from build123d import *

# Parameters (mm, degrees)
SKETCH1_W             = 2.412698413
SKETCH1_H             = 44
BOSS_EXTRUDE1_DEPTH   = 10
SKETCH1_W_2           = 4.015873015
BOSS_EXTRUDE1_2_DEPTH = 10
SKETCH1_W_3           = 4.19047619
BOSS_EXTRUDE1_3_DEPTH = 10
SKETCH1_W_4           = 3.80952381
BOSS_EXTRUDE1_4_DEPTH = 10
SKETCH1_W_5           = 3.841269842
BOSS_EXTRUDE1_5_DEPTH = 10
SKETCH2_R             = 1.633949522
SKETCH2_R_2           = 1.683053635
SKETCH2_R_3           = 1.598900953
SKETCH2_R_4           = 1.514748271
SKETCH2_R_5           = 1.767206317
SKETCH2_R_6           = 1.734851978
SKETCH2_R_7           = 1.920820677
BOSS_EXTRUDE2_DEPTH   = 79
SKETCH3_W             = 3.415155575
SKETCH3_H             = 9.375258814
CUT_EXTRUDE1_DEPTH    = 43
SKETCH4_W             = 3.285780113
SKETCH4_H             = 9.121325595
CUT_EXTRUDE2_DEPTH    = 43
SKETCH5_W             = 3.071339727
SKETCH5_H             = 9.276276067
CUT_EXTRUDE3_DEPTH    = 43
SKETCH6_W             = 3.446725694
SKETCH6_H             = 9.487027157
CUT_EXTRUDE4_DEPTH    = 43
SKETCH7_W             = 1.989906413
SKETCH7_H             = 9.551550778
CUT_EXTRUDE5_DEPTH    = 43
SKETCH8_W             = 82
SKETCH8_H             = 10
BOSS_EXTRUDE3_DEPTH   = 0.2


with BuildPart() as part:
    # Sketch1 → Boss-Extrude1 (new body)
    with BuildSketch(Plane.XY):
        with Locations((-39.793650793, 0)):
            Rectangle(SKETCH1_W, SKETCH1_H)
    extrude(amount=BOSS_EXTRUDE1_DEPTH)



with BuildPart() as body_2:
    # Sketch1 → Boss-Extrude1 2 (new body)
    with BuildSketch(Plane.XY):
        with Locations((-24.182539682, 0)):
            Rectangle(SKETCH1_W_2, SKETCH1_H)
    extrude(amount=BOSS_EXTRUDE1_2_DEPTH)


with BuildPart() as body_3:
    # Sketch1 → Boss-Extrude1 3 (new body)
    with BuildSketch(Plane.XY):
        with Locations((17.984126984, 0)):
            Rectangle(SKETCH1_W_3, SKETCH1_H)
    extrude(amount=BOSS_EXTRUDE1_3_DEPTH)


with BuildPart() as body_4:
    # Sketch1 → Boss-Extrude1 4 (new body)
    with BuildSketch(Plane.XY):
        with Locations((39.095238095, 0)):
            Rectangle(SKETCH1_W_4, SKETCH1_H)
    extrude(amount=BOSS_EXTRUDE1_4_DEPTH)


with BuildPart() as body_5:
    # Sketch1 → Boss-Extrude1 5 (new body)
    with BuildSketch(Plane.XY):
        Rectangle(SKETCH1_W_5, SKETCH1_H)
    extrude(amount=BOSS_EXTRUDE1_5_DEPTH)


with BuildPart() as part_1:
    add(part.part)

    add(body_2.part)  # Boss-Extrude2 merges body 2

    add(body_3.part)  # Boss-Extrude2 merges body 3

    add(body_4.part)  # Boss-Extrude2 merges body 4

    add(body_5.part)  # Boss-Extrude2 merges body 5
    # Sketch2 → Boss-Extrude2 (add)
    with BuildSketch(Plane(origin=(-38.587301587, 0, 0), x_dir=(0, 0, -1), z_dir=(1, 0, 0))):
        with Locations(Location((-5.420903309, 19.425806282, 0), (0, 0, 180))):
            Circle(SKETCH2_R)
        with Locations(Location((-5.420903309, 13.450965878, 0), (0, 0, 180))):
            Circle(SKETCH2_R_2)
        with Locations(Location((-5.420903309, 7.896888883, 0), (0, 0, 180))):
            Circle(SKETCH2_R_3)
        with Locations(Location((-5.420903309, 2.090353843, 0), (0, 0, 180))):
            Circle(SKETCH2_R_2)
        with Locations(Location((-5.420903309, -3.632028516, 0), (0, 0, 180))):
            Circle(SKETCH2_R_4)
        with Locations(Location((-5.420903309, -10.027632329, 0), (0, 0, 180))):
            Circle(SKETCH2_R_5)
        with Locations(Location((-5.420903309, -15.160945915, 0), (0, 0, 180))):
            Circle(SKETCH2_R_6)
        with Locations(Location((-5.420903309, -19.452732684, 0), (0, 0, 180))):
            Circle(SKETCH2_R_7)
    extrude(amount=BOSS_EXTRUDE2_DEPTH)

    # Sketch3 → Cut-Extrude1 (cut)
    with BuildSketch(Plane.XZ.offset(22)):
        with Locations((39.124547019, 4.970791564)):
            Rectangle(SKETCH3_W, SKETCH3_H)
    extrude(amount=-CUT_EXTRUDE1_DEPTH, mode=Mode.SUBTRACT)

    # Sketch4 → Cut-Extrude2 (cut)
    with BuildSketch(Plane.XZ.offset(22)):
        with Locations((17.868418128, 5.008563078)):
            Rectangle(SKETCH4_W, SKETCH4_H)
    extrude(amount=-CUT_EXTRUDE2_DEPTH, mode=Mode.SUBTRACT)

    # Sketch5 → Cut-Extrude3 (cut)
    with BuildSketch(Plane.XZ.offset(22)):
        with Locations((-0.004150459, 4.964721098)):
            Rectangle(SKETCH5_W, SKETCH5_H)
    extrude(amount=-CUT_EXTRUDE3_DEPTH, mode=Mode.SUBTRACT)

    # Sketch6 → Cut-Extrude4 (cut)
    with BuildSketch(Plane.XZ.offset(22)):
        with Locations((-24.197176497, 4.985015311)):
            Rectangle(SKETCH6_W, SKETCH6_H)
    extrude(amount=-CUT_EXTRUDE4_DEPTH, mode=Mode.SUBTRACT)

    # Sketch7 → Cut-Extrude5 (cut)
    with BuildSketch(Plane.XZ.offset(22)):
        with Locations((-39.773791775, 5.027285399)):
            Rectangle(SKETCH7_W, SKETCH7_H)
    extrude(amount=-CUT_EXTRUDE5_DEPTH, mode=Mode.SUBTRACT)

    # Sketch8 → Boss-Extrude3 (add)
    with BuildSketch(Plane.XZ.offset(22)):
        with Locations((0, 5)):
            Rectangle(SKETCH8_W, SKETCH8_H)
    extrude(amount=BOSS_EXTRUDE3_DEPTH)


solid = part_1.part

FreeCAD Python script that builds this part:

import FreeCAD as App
import Part
import Sketcher
Q = App.Units.Quantity

doc = App.newDocument("Part")
body = doc.addObject("PartDesign::Body", "Body")

# Sketch on XY plane
sketch1 = doc.addObject("Sketcher::SketchObject", "Sketch")
body.addObject(sketch1)
sketch1.AttachmentSupport = (doc.XY_Plane, [""])
sketch1.MapMode = "FlatFace"
sketch1.addGeometry([
    Part.LineSegment(App.Vector(-41, 22, 0), App.Vector(-41, -22, 0)),
    Part.LineSegment(App.Vector(-41, -22, 0), App.Vector(-38.587302, -22, 0)),
    Part.LineSegment(App.Vector(-38.587302, -22, 0), App.Vector(-38.587302, 22, 0)),
    Part.LineSegment(App.Vector(-38.587302, 22, 0), App.Vector(-41, 22, 0)),
], False)
sketch1.addConstraint([
    Sketcher.Constraint("Coincident", 0, 2, 1, 1),
    Sketcher.Constraint("Coincident", 1, 2, 2, 1),
    Sketcher.Constraint("Coincident", 2, 2, 3, 1),
    Sketcher.Constraint("Coincident", 3, 2, 0, 1),
    Sketcher.Constraint("Vertical", 0),
    Sketcher.Constraint("Horizontal", 1),
    Sketcher.Constraint("Vertical", 2),
    Sketcher.Constraint("Horizontal", 3),
    Sketcher.Constraint("DistanceY", 0, 2, 0, 1, Q("44 mm")),
    Sketcher.Constraint("DistanceX", 0, 2, -1, 1, Q("41 mm")),
    Sketcher.Constraint("DistanceY", 0, 2, -1, 1, Q("22 mm")),
    Sketcher.Constraint("DistanceX", 1, 1, 1, 2, Q("2.412698 mm")),
])
pad1 = doc.addObject("PartDesign::Pad", "Pad")
body.addObject(pad1)
pad1.Profile = sketch1
pad1.Length = 10
body2 = doc.addObject("PartDesign::Body", "Body001")

# Sketch on XY plane
sketch2 = doc.addObject("Sketcher::SketchObject", "Sketch001")
body2.addObject(sketch2)
sketch2.AttachmentSupport = (doc.getObject("XY_Plane001"), [""])
sketch2.MapMode = "FlatFace"
sketch2.addGeometry([
    Part.LineSegment(App.Vector(-26.190476, 22, 0), App.Vector(-26.190476, -22, 0)),
    Part.LineSegment(App.Vector(-26.190476, -22, 0), App.Vector(-22.174603, -22, 0)),
    Part.LineSegment(App.Vector(-22.174603, -22, 0), App.Vector(-22.174603, 22, 0)),
    Part.LineSegment(App.Vector(-22.174603, 22, 0), App.Vector(-26.190476, 22, 0)),
], False)
sketch2.addConstraint([
    Sketcher.Constraint("Coincident", 0, 2, 1, 1),
    Sketcher.Constraint("Coincident", 1, 2, 2, 1),
    Sketcher.Constraint("Coincident", 2, 2, 3, 1),
    Sketcher.Constraint("Coincident", 3, 2, 0, 1),
    Sketcher.Constraint("Vertical", 0),
    Sketcher.Constraint("Horizontal", 1),
    Sketcher.Constraint("Vertical", 2),
    Sketcher.Constraint("Horizontal", 3),
    Sketcher.Constraint("DistanceY", 0, 2, 0, 1, Q("44 mm")),
    Sketcher.Constraint("DistanceY", 0, 2, -1, 1, Q("22 mm")),
    Sketcher.Constraint("DistanceX", 1, 1, 1, 2, Q("4.015873 mm")),
    Sketcher.Constraint("DistanceX", 0, 2, -1, 1, Q("26.190476 mm")),
])
pad2 = doc.addObject("PartDesign::Pad", "Pad001")
body2.addObject(pad2)
pad2.Profile = sketch2
pad2.Length = 10
body3 = doc.addObject("PartDesign::Body", "Body002")

# Sketch on XY plane
sketch3 = doc.addObject("Sketcher::SketchObject", "Sketch002")
body3.addObject(sketch3)
sketch3.AttachmentSupport = (doc.getObject("XY_Plane002"), [""])
sketch3.MapMode = "FlatFace"
sketch3.addGeometry([
    Part.LineSegment(App.Vector(15.888889, 22, 0), App.Vector(15.888889, -22, 0)),
    Part.LineSegment(App.Vector(15.888889, -22, 0), App.Vector(20.079365, -22, 0)),
    Part.LineSegment(App.Vector(20.079365, -22, 0), App.Vector(20.079365, 22, 0)),
    Part.LineSegment(App.Vector(20.079365, 22, 0), App.Vector(15.888889, 22, 0)),
], False)
sketch3.addConstraint([
    Sketcher.Constraint("Coincident", 0, 2, 1, 1),
    Sketcher.Constraint("Coincident", 1, 2, 2, 1),
    Sketcher.Constraint("Coincident", 2, 2, 3, 1),
    Sketcher.Constraint("Coincident", 3, 2, 0, 1),
    Sketcher.Constraint("Vertical", 0),
    Sketcher.Constraint("Horizontal", 1),
    Sketcher.Constraint("Vertical", 2),
    Sketcher.Constraint("Horizontal", 3),
    Sketcher.Constraint("DistanceY", 0, 2, 0, 1, Q("44 mm")),
    Sketcher.Constraint("DistanceY", 0, 2, -1, 1, Q("22 mm")),
    Sketcher.Constraint("DistanceX", 1, 1, 1, 2, Q("4.190476 mm")),
    Sketcher.Constraint("DistanceX", -1, 1, 0, 2, Q("15.888889 mm")),
])
pad3 = doc.addObject("PartDesign::Pad", "Pad002")
body3.addObject(pad3)
pad3.Profile = sketch3
pad3.Length = 10
body4 = doc.addObject("PartDesign::Body", "Body003")

# Sketch on XY plane
sketch4 = doc.addObject("Sketcher::SketchObject", "Sketch003")
body4.addObject(sketch4)
sketch4.AttachmentSupport = (doc.getObject("XY_Plane003"), [""])
sketch4.MapMode = "FlatFace"
sketch4.addGeometry([
    Part.LineSegment(App.Vector(37.190476, 22, 0), App.Vector(37.190476, -22, 0)),
    Part.LineSegment(App.Vector(37.190476, -22, 0), App.Vector(41, -22, 0)),
    Part.LineSegment(App.Vector(41, -22, 0), App.Vector(41, 22, 0)),
    Part.LineSegment(App.Vector(41, 22, 0), App.Vector(37.190476, 22, 0)),
], False)
sketch4.addConstraint([
    Sketcher.Constraint("Coincident", 0, 2, 1, 1),
    Sketcher.Constraint("Coincident", 1, 2, 2, 1),
    Sketcher.Constraint("Coincident", 2, 2, 3, 1),
    Sketcher.Constraint("Coincident", 3, 2, 0, 1),
    Sketcher.Constraint("Vertical", 0),
    Sketcher.Constraint("Horizontal", 1),
    Sketcher.Constraint("Vertical", 2),
    Sketcher.Constraint("Horizontal", 3),
    Sketcher.Constraint("DistanceY", 0, 2, 0, 1, Q("44 mm")),
    Sketcher.Constraint("DistanceY", 0, 2, -1, 1, Q("22 mm")),
    Sketcher.Constraint("DistanceX", -1, 1, 1, 2, Q("41 mm")),
    Sketcher.Constraint("DistanceX", 1, 1, 1, 2, Q("3.809524 mm")),
])
pad4 = doc.addObject("PartDesign::Pad", "Pad003")
body4.addObject(pad4)
pad4.Profile = sketch4
pad4.Length = 10
body5 = doc.addObject("PartDesign::Body", "Body004")

# Sketch on XY plane
sketch5 = doc.addObject("Sketcher::SketchObject", "Sketch004")
body5.addObject(sketch5)
sketch5.AttachmentSupport = (doc.getObject("XY_Plane004"), [""])
sketch5.MapMode = "FlatFace"
sketch5.addGeometry([
    Part.LineSegment(App.Vector(-1.920635, 22, 0), App.Vector(-1.920635, -22, 0)),
    Part.LineSegment(App.Vector(-1.920635, -22, 0), App.Vector(1.920635, -22, 0)),
    Part.LineSegment(App.Vector(1.920635, -22, 0), App.Vector(1.920635, 22, 0)),
    Part.LineSegment(App.Vector(1.920635, 22, 0), App.Vector(-1.920635, 22, 0)),
], False)
sketch5.addConstraint([
    Sketcher.Constraint("Coincident", 0, 2, 1, 1),
    Sketcher.Constraint("Coincident", 1, 2, 2, 1),
    Sketcher.Constraint("Coincident", 2, 2, 3, 1),
    Sketcher.Constraint("Coincident", 3, 2, 0, 1),
    Sketcher.Constraint("Vertical", 0),
    Sketcher.Constraint("Horizontal", 1),
    Sketcher.Constraint("Vertical", 2),
    Sketcher.Constraint("Horizontal", 3),
    Sketcher.Constraint("Symmetric", 0, 2, 2, 2, -1, 1),
    Sketcher.Constraint("DistanceY", 0, 2, 0, 1, Q("44 mm")),
    Sketcher.Constraint("DistanceX", 1, 1, 1, 2, Q("3.84127 mm")),
])
pad5 = doc.addObject("PartDesign::Pad", "Pad004")
body5.addObject(pad5)
pad5.Profile = sketch5
pad5.Length = 10
body.AllowCompound = True
doc.recompute()

boolean = doc.addObject("PartDesign::Boolean", "Boolean")
body.addObject(boolean)
boolean.Type = "Fuse"
boolean.addObjects([body2])
doc.recompute()

boolean2 = doc.addObject("PartDesign::Boolean", "Boolean001")
body.addObject(boolean2)
boolean2.Type = "Fuse"
boolean2.addObjects([body3])
doc.recompute()

boolean3 = doc.addObject("PartDesign::Boolean", "Boolean002")
body.addObject(boolean3)
boolean3.Type = "Fuse"
boolean3.addObjects([body4])
doc.recompute()

boolean4 = doc.addObject("PartDesign::Boolean", "Boolean003")
body.addObject(boolean4)
boolean4.Type = "Fuse"
boolean4.addObjects([body5])

# Sketch on YZ plane
sketch6 = doc.addObject("Sketcher::SketchObject", "Sketch005")
body.addObject(sketch6)
sketch6.AttachmentSupport = (doc.YZ_Plane, [""])
sketch6.MapMode = "FlatFace"
sketch6.AttachmentOffset = App.Placement(App.Vector(0, 0, -38.587302), App.Rotation())
sketch6.addGeometry([
    Part.Circle(App.Vector(19.425806, 5.420903, 0), App.Vector(0, 0, 1), 1.63395),  # 0
    Part.Circle(App.Vector(13.450966, 5.420903, 0), App.Vector(0, 0, 1), 1.683054),  # 1
    Part.Circle(App.Vector(7.896889, 5.420903, 0), App.Vector(0, 0, 1), 1.598901),  # 2
    Part.Circle(App.Vector(2.090354, 5.420903, 0), App.Vector(0, 0, 1), 1.683054),  # 3
    Part.Circle(App.Vector(-3.632029, 5.420903, 0), App.Vector(0, 0, 1), 1.514748),  # 4
    Part.Circle(App.Vector(-10.027632, 5.420903, 0), App.Vector(0, 0, 1), 1.767206),  # 5
    Part.Circle(App.Vector(-15.160946, 5.420903, 0), App.Vector(0, 0, 1), 1.734852),  # 6
    Part.Circle(App.Vector(-19.452733, 5.420903, 0), App.Vector(0, 0, 1), 1.920821),  # 7
], False)
sketch6.addConstraint([
    Sketcher.Constraint("Equal", 1, 3),
    Sketcher.Constraint("Horizontal", 0, 3, 1, 3),
    Sketcher.Constraint("Horizontal", 1, 3, 2, 3),
    Sketcher.Constraint("Horizontal", 2, 3, 3, 3),
    Sketcher.Constraint("Horizontal", 3, 3, 4, 3),
    Sketcher.Constraint("Horizontal", 4, 3, 5, 3),
    Sketcher.Constraint("Horizontal", 5, 3, 6, 3),
    Sketcher.Constraint("Horizontal", 6, 3, 7, 3),
    Sketcher.Constraint("Diameter", 0, Q("3.267899 mm")),
    Sketcher.Constraint("Diameter", 2, Q("3.197802 mm")),
    Sketcher.Constraint("Diameter", 7, Q("3.841641 mm")),
    Sketcher.Constraint("Diameter", 1, Q("3.366107 mm")),
    Sketcher.Constraint("Diameter", 4, Q("3.029497 mm")),
    Sketcher.Constraint("Diameter", 5, Q("3.534413 mm")),
    Sketcher.Constraint("Diameter", 6, Q("3.469704 mm")),
    Sketcher.Constraint("DistanceX", 5, 3, 1, 3, Q("23.478598 mm")),
    Sketcher.Constraint("DistanceX", 6, 3, 3, 3, Q("17.2513 mm")),
    Sketcher.Constraint("DistanceX", 7, 3, 5, 3, Q("9.4251 mm")),
    Sketcher.Constraint("DistanceX", -1, 1, 2, 3, Q("7.896889 mm")),
    Sketcher.Constraint("DistanceX", 4, 3, -1, 1, Q("3.632029 mm")),
    Sketcher.Constraint("DistanceX", 1, 3, 0, 3, Q("5.97484 mm")),
    Sketcher.Constraint("DistanceX", 5, 3, 2, 3, Q("17.924521 mm")),
    Sketcher.Constraint("DistanceX", 6, 3, 1, 3, Q("28.611912 mm")),
    Sketcher.Constraint("DistanceY", -1, 1, 0, 3, Q("5.420903 mm")),
])
pad6 = doc.addObject("PartDesign::Pad", "Pad005")
body.addObject(pad6)
pad6.Profile = sketch6
pad6.Length = 79

# Sketch on XZ plane
sketch7 = doc.addObject("Sketcher::SketchObject", "Sketch006")
body.addObject(sketch7)
sketch7.AttachmentSupport = (doc.XZ_Plane, [""])
sketch7.MapMode = "FlatFace"
sketch7.AttachmentOffset = App.Placement(App.Vector(0, 0, 22), App.Rotation())
sketch7.addGeometry([
    Part.LineSegment(App.Vector(37.416969, 9.658421, 0), App.Vector(37.416969, 0.283162, 0)),
    Part.LineSegment(App.Vector(37.416969, 0.283162, 0), App.Vector(40.832125, 0.283162, 0)),
    Part.LineSegment(App.Vector(40.832125, 0.283162, 0), App.Vector(40.832125, 9.658421, 0)),
    Part.LineSegment(App.Vector(40.832125, 9.658421, 0), App.Vector(37.416969, 9.658421, 0)),
], False)
sketch7.addConstraint([
    Sketcher.Constraint("Coincident", 0, 2, 1, 1),
    Sketcher.Constraint("Coincident", 1, 2, 2, 1),
    Sketcher.Constraint("Coincident", 2, 2, 3, 1),
    Sketcher.Constraint("Coincident", 3, 2, 0, 1),
    Sketcher.Constraint("Vertical", 0),
    Sketcher.Constraint("Horizontal", 1),
    Sketcher.Constraint("Vertical", 2),
    Sketcher.Constraint("Horizontal", 3),
    Sketcher.Constraint("DistanceY", 0, 2, 0, 1, Q("9.375259 mm")),
    Sketcher.Constraint("DistanceX", 1, 1, 1, 2, Q("3.415156 mm")),
    Sketcher.Constraint("DistanceX", -1, 1, 0, 2, Q("37.416969 mm")),
    Sketcher.Constraint("DistanceY", -1, 1, 2, 2, Q("9.658421 mm")),
])
pocket1 = doc.addObject("PartDesign::Pocket", "Pocket")
body.addObject(pocket1)
pocket1.Profile = sketch7
pocket1.Length = 43

# Sketch on XZ plane
sketch8 = doc.addObject("Sketcher::SketchObject", "Sketch007")
body.addObject(sketch8)
sketch8.AttachmentSupport = (doc.XZ_Plane, [""])
sketch8.MapMode = "FlatFace"
sketch8.AttachmentOffset = App.Placement(App.Vector(0, 0, 22), App.Rotation())
sketch8.addGeometry([
    Part.LineSegment(App.Vector(16.225528, 9.569226, 0), App.Vector(16.225528, 0.4479, 0)),
    Part.LineSegment(App.Vector(16.225528, 0.4479, 0), App.Vector(19.511308, 0.4479, 0)),
    Part.LineSegment(App.Vector(19.511308, 0.4479, 0), App.Vector(19.511308, 9.569226, 0)),
    Part.LineSegment(App.Vector(19.511308, 9.569226, 0), App.Vector(16.225528, 9.569226, 0)),
], False)
sketch8.addConstraint([
    Sketcher.Constraint("Coincident", 0, 2, 1, 1),
    Sketcher.Constraint("Coincident", 1, 2, 2, 1),
    Sketcher.Constraint("Coincident", 2, 2, 3, 1),
    Sketcher.Constraint("Coincident", 3, 2, 0, 1),
    Sketcher.Constraint("Vertical", 0),
    Sketcher.Constraint("Horizontal", 1),
    Sketcher.Constraint("Vertical", 2),
    Sketcher.Constraint("Horizontal", 3),
    Sketcher.Constraint("DistanceX", 1, 1, 1, 2, Q("3.28578 mm")),
    Sketcher.Constraint("DistanceY", -1, 1, 0, 2, Q("0.4479 mm")),
    Sketcher.Constraint("DistanceY", 0, 2, 0, 1, Q("9.121326 mm")),
    Sketcher.Constraint("DistanceX", -1, 1, 0, 2, Q("16.225528 mm")),
])
pocket2 = doc.addObject("PartDesign::Pocket", "Pocket001")
body.addObject(pocket2)
pocket2.Profile = sketch8
pocket2.Length = 43

# Sketch on XZ plane
sketch9 = doc.addObject("Sketcher::SketchObject", "Sketch008")
body.addObject(sketch9)
sketch9.AttachmentSupport = (doc.XZ_Plane, [""])
sketch9.MapMode = "FlatFace"
sketch9.AttachmentOffset = App.Placement(App.Vector(0, 0, 22), App.Rotation())
sketch9.addGeometry([
    Part.LineSegment(App.Vector(-1.53982, 9.602859, 0), App.Vector(-1.53982, 0.326583, 0)),
    Part.LineSegment(App.Vector(-1.53982, 0.326583, 0), App.Vector(1.531519, 0.326583, 0)),
    Part.LineSegment(App.Vector(1.531519, 0.326583, 0), App.Vector(1.531519, 9.602859, 0)),
    Part.LineSegment(App.Vector(1.531519, 9.602859, 0), App.Vector(-1.53982, 9.602859, 0)),
], False)
sketch9.addConstraint([
    Sketcher.Constraint("Coincident", 0, 2, 1, 1),
    Sketcher.Constraint("Coincident", 1, 2, 2, 1),
    Sketcher.Constraint("Coincident", 2, 2, 3, 1),
    Sketcher.Constraint("Coincident", 3, 2, 0, 1),
    Sketcher.Constraint("Vertical", 0),
    Sketcher.Constraint("Horizontal", 1),
    Sketcher.Constraint("Vertical", 2),
    Sketcher.Constraint("Horizontal", 3),
    Sketcher.Constraint("DistanceX", 1, 1, 1, 2, Q("3.07134 mm")),
    Sketcher.Constraint("DistanceY", 0, 2, 0, 1, Q("9.276276 mm")),
    Sketcher.Constraint("DistanceX", 0, 2, -1, 1, Q("1.53982 mm")),
    Sketcher.Constraint("DistanceY", -1, 1, 2, 2, Q("9.602859 mm")),
])
pocket3 = doc.addObject("PartDesign::Pocket", "Pocket002")
body.addObject(pocket3)
pocket3.Profile = sketch9
pocket3.Length = 43

# Sketch on XZ plane
sketch10 = doc.addObject("Sketcher::SketchObject", "Sketch009")
body.addObject(sketch10)
sketch10.AttachmentSupport = (doc.XZ_Plane, [""])
sketch10.MapMode = "FlatFace"
sketch10.AttachmentOffset = App.Placement(App.Vector(0, 0, 22), App.Rotation())
sketch10.addGeometry([
    Part.LineSegment(App.Vector(-25.920539, 9.728529, 0), App.Vector(-25.920539, 0.241502, 0)),
    Part.LineSegment(App.Vector(-25.920539, 0.241502, 0), App.Vector(-22.473814, 0.241502, 0)),
    Part.LineSegment(App.Vector(-22.473814, 0.241502, 0), App.Vector(-22.473814, 9.728529, 0)),
    Part.LineSegment(App.Vector(-22.473814, 9.728529, 0), App.Vector(-25.920539, 9.728529, 0)),
], False)
sketch10.addConstraint([
    Sketcher.Constraint("Coincident", 0, 2, 1, 1),
    Sketcher.Constraint("Coincident", 1, 2, 2, 1),
    Sketcher.Constraint("Coincident", 2, 2, 3, 1),
    Sketcher.Constraint("Coincident", 3, 2, 0, 1),
    Sketcher.Constraint("Vertical", 0),
    Sketcher.Constraint("Horizontal", 1),
    Sketcher.Constraint("Vertical", 2),
    Sketcher.Constraint("Horizontal", 3),
    Sketcher.Constraint("DistanceY", -1, 1, 0, 2, Q("0.241502 mm")),
    Sketcher.Constraint("DistanceX", 1, 1, 1, 2, Q("3.446726 mm")),
    Sketcher.Constraint("DistanceY", 0, 2, 0, 1, Q("9.487027 mm")),
    Sketcher.Constraint("DistanceX", 0, 2, -1, 1, Q("25.920539 mm")),
])
pocket4 = doc.addObject("PartDesign::Pocket", "Pocket003")
body.addObject(pocket4)
pocket4.Profile = sketch10
pocket4.Length = 43

# Sketch on XZ plane
sketch11 = doc.addObject("Sketcher::SketchObject", "Sketch010")
body.addObject(sketch11)
sketch11.AttachmentSupport = (doc.XZ_Plane, [""])
sketch11.MapMode = "FlatFace"
sketch11.AttachmentOffset = App.Placement(App.Vector(0, 0, 22), App.Rotation())
sketch11.addGeometry([
    Part.LineSegment(App.Vector(-40.768745, 9.803061, 0), App.Vector(-40.768745, 0.25151, 0)),
    Part.LineSegment(App.Vector(-40.768745, 0.25151, 0), App.Vector(-38.778839, 0.25151, 0)),
    Part.LineSegment(App.Vector(-38.778839, 0.25151, 0), App.Vector(-38.778839, 9.803061, 0)),
    Part.LineSegment(App.Vector(-38.778839, 9.803061, 0), App.Vector(-40.768745, 9.803061, 0)),
], False)
sketch11.addConstraint([
    Sketcher.Constraint("Coincident", 0, 2, 1, 1),
    Sketcher.Constraint("Coincident", 1, 2, 2, 1),
    Sketcher.Constraint("Coincident", 2, 2, 3, 1),
    Sketcher.Constraint("Coincident", 3, 2, 0, 1),
    Sketcher.Constraint("Vertical", 0),
    Sketcher.Constraint("Horizontal", 1),
    Sketcher.Constraint("Vertical", 2),
    Sketcher.Constraint("Horizontal", 3),
    Sketcher.Constraint("DistanceY", 0, 2, 0, 1, Q("9.551551 mm")),
    Sketcher.Constraint("DistanceX", 1, 1, 1, 2, Q("1.989906 mm")),
    Sketcher.Constraint("DistanceY", -1, 1, 0, 2, Q("0.25151 mm")),
    Sketcher.Constraint("DistanceX", 1, 2, -1, 1, Q("38.778839 mm")),
])
pocket5 = doc.addObject("PartDesign::Pocket", "Pocket004")
body.addObject(pocket5)
pocket5.Profile = sketch11
pocket5.Length = 43

# Sketch on XZ plane
sketch12 = doc.addObject("Sketcher::SketchObject", "Sketch011")
body.addObject(sketch12)
sketch12.AttachmentSupport = (doc.XZ_Plane, [""])
sketch12.MapMode = "FlatFace"
sketch12.AttachmentOffset = App.Placement(App.Vector(0, 0, 22), App.Rotation())
sketch12.addGeometry([
    Part.LineSegment(App.Vector(-41, 10, 0), App.Vector(-41, 0, 0)),
    Part.LineSegment(App.Vector(-41, 0, 0), App.Vector(41, 0, 0)),
    Part.LineSegment(App.Vector(41, 0, 0), App.Vector(41, 10, 0)),
    Part.LineSegment(App.Vector(41, 10, 0), App.Vector(-41, 10, 0)),
], False)
sketch12.addConstraint([
    Sketcher.Constraint("Coincident", 0, 2, 1, 1),
    Sketcher.Constraint("Coincident", 1, 2, 2, 1),
    Sketcher.Constraint("Coincident", 2, 2, 3, 1),
    Sketcher.Constraint("Coincident", 3, 2, 0, 1),
    Sketcher.Constraint("Vertical", 0),
    Sketcher.Constraint("Horizontal", 1),
    Sketcher.Constraint("Vertical", 2),
    Sketcher.Constraint("Horizontal", 3),
    Sketcher.Constraint("Symmetric", 0, 2, 1, 2, -1, 1),
    Sketcher.Constraint("DistanceX", 1, 1, 1, 2, Q("82 mm")),
    Sketcher.Constraint("DistanceY", 0, 2, 0, 1, Q("10 mm")),
])
pad7 = doc.addObject("PartDesign::Pad", "Pad006")
body.addObject(pad7)
pad7.Profile = sketch12
pad7.Length = 0.2

doc.recompute()
